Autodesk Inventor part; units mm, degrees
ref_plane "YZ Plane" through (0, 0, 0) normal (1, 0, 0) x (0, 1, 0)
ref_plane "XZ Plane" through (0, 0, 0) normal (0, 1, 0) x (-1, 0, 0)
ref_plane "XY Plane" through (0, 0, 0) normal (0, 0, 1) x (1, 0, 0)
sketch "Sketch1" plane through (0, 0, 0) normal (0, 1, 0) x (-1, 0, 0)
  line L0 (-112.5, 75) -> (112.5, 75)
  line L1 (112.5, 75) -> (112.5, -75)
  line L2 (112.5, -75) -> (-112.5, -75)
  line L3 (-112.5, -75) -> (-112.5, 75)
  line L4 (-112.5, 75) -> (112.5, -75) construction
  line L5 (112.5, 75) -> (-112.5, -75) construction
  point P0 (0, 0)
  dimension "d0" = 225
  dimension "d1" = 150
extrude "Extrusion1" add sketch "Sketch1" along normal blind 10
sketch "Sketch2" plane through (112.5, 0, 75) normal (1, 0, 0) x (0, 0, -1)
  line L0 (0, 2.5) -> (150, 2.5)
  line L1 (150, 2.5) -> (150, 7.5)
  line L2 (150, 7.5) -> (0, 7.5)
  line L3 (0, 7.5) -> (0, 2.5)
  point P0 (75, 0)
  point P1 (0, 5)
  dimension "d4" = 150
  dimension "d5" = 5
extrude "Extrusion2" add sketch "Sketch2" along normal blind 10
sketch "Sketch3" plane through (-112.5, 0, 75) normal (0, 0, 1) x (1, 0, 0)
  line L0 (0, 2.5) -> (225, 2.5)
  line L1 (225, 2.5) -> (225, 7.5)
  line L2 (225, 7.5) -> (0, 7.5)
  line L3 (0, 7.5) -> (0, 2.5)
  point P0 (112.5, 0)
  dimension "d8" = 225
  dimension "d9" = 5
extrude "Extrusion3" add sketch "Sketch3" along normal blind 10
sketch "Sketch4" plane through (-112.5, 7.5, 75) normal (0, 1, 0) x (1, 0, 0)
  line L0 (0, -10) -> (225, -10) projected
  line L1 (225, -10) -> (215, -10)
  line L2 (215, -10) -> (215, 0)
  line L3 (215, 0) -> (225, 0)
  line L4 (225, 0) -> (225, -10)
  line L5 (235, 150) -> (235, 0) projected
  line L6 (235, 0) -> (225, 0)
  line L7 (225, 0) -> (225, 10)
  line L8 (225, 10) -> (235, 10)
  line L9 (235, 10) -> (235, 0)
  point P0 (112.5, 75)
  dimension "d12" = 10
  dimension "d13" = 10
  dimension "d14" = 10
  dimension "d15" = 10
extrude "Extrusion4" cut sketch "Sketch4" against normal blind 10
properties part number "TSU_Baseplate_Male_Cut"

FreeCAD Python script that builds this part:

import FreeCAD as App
import Part
import Sketcher

V = App.Vector

doc = App.newDocument("Part")
params = doc.addObject("Spreadsheet::Sheet", "Params")
for row, (alias, value) in enumerate([
    ("sketch1_width", "225 mm"),
    ("sketch1_height", "150 mm"),
    ("pad1_length", "10 mm"),
    ("sketch2_width", "5 mm"),
    ("sketch2_height", "150 mm"),
    ("pad2_length", "10 mm"),
    ("sketch3_width", "225 mm"),
    ("sketch3_height", "5 mm"),
    ("pad3_length", "10 mm"),
    ("sketch4_width", "10 mm"),
    ("pocket1_length", "10 mm"),
], start=1):
    params.set(f"A{row}", alias)
    params.set(f"B{row}", "=" + value)
    params.setAlias(f"B{row}", alias)

body = doc.addObject("PartDesign::Body", "Body")

# Sketch on XZ plane
sketch1 = body.newObject("Sketcher::SketchObject", "Sketch")
sketch1.AttachmentSupport = (doc.getObject("XZ_Plane"), [""])
sketch1.MapMode = "FlatFace"
sketch1.addGeometry([
    Part.LineSegment(V(-112, 75, 0), V(112, 75, 0)),
    Part.LineSegment(V(112, 75, 0), V(112, -75, 0)),
    Part.LineSegment(V(112, -75, 0), V(-112, -75, 0)),
    Part.LineSegment(V(-112, -75, 0), V(-112, 75, 0)),
], False)
sketch1.addConstraint([
    Sketcher.Constraint("Coincident", 0, 2, 1, 1),
    Sketcher.Constraint("Coincident", 1, 2, 2, 1),
    Sketcher.Constraint("Coincident", 2, 2, 3, 1),
    Sketcher.Constraint("Coincident", 3, 2, 0, 1),
    Sketcher.Constraint("Horizontal", 0),
    Sketcher.Constraint("Vertical", 1),
    Sketcher.Constraint("Horizontal", 2),
    Sketcher.Constraint("Vertical", 3),
    Sketcher.Constraint("Symmetric", 0, 2, 2, 2, -1, 1),
    Sketcher.Constraint("DistanceX", 0, 1, 0, 2, 225.0),
    Sketcher.Constraint("DistanceY", 1, 2, 1, 1, 150.0),
])
sketch1.setExpression("Constraints[9]", "Params.sketch1_width")
sketch1.setExpression("Constraints[10]", "Params.sketch1_height")
pad1 = body.newObject("PartDesign::Pad", "Pad")
pad1.Profile = sketch1
pad1.setExpression("Length", "Params.pad1_length")
pad1.Reversed = True

# Sketch on YZ plane
sketch2 = body.newObject("Sketcher::SketchObject", "Sketch001")
sketch2.AttachmentSupport = (doc.getObject("YZ_Plane"), [""])
sketch2.MapMode = "FlatFace"
sketch2.AttachmentOffset = App.Placement(V(0, 0, 112.5), App.Rotation())
sketch2.addGeometry([
    Part.LineSegment(V(8, 75, 0), V(2, 75, 0)),
    Part.LineSegment(V(2, 75, 0), V(2, -75, 0)),
    Part.LineSegment(V(2, -75, 0), V(8, -75, 0)),
    Part.LineSegment(V(8, -75, 0), V(8, 75, 0)),
], False)
sketch2.addConstraint([
    Sketcher.Constraint("Coincident", 0, 2, 1, 1),
    Sketcher.Constraint("Coincident", 1, 2, 2, 1),
    Sketcher.Constraint("Coincident", 2, 2, 3, 1),
    Sketcher.Constraint("Coincident", 3, 2, 0, 1),
    Sketcher.Constraint("Horizontal", 0),
    Sketcher.Constraint("Vertical", 1),
    Sketcher.Constraint("Horizontal", 2),
    Sketcher.Constraint("Vertical", 3),
    Sketcher.Constraint("DistanceX", 0, 2, 0, 1, 5.0),
    Sketcher.Constraint("DistanceY", 1, 2, 1, 1, 150.0),
    Sketcher.Constraint("DistanceY", -1, 1, 0, 2, 75.0),
    Sketcher.Constraint("DistanceX", -1, 1, 0, 2, 2.5),
])
sketch2.setExpression("Constraints[8]", "Params.sketch2_width")
sketch2.setExpression("Constraints[9]", "Params.sketch2_height")
pad2 = body.newObject("PartDesign::Pad", "Pad001")
pad2.Profile = sketch2
pad2.setExpression("Length", "Params.pad2_length")

# Sketch on XY plane
sketch3 = body.newObject("Sketcher::SketchObject", "Sketch002")
sketch3.AttachmentSupport = (doc.getObject("XY_Plane"), [""])
sketch3.MapMode = "FlatFace"
sketch3.AttachmentOffset = App.Placement(V(0, 0, 75), App.Rotation())
sketch3.addGeometry([
    Part.LineSegment(V(-112, 8, 0), V(-112, 2, 0)),
    Part.LineSegment(V(-112, 2, 0), V(112, 2, 0)),
    Part.LineSegment(V(112, 2, 0), V(112, 8, 0)),
    Part.LineSegment(V(112, 8, 0), V(-112, 8, 0)),
], False)
sketch3.addConstraint([
    Sketcher.Constraint("Coincident", 0, 2, 1, 1),
    Sketcher.Constraint("Coincident", 1, 2, 2, 1),
    Sketcher.Constraint("Coincident", 2, 2, 3, 1),
    Sketcher.Constraint("Coincident", 3, 2, 0, 1),
    Sketcher.Constraint("Vertical", 0),
    Sketcher.Constraint("Horizontal", 1),
    Sketcher.Constraint("Vertical", 2),
    Sketcher.Constraint("Horizontal", 3),
    Sketcher.Constraint("DistanceX", 1, 1, 1, 2, 225.0),
    Sketcher.Constraint("DistanceY", 0, 2, 0, 1, 5.0),
    Sketcher.Constraint("DistanceX", 0, 2, -1, 1, 112.5),
    Sketcher.Constraint("DistanceY", -1, 1, 0, 2, 2.5),
])
sketch3.setExpression("Constraints[8]", "Params.sketch3_width")
sketch3.setExpression("Constraints[9]", "Params.sketch3_height")
pad3 = body.newObject("PartDesign::Pad", "Pad002")
pad3.Profile = sketch3
pad3.setExpression("Length", "Params.pad3_length")

# Sketch on XZ plane
sketch4 = body.newObject("Sketcher::SketchObject", "Sketch003")
sketch4.AttachmentSupport = (doc.getObject("XZ_Plane"), [""])
sketch4.MapMode = "FlatFace"
sketch4.AttachmentOffset = App.Placement(V(0, 0, -7.5), App.Rotation())
sketch4.addGeometry([
    Part.LineSegment(V(102, 75, 0), V(102, 85, 0)),  # 0
    Part.LineSegment(V(102, 85, 0), V(112, 85, 0)),  # 1
    Part.LineSegment(V(112, 85, 0), V(112, 75, 0)),  # 2
    Part.LineSegment(V(112, 75, 0), V(102, 75, 0)),  # 3
    Part.LineSegment(V(112, 65, 0), V(112, 75, 0)),  # 4
    Part.LineSegment(V(112, 75, 0), V(122, 75, 0)),  # 5
    Part.LineSegment(V(122, 75, 0), V(122, 65, 0)),  # 6
    Part.LineSegment(V(122, 65, 0), V(112, 65, 0)),  # 7
], False)
sketch4.addConstraint([
    Sketcher.Constraint("Coincident", 0, 2, 1, 1),
    Sketcher.Constraint("Coincident", 1, 2, 2, 1),
    Sketcher.Constraint("Coincident", 2, 2, 3, 1),
    Sketcher.Constraint("Coincident", 3, 2, 0, 1),
    Sketcher.Constraint("Coincident", 4, 2, 5, 1),
    Sketcher.Constraint("Coincident", 5, 2, 6, 1),
    Sketcher.Constraint("Coincident", 6, 2, 7, 1),
    Sketcher.Constraint("Coincident", 7, 2, 4, 1),
    Sketcher.Constraint("Vertical", 0),
    Sketcher.Constraint("Horizontal", 1),
    Sketcher.Constraint("Vertical", 2),
    Sketcher.Constraint("Horizontal", 3),
    Sketcher.Constraint("Vertical", 4),
    Sketcher.Constraint("Horizontal", 5),
    Sketcher.Constraint("Vertical", 6),
    Sketcher.Constraint("Horizontal", 7),
    Sketcher.Constraint("Coincident", 4, 2, 2, 2),
    Sketcher.Constraint("Equal", 3, 5),
    Sketcher.Constraint("Equal", 7, 0),
    Sketcher.Constraint("Equal", 2, 4),
    Sketcher.Constraint("DistanceX", 1, 1, 1, 2, 10.0),
    Sketcher.Constraint("DistanceY", -1, 1, 0, 2, 85.0),
    Sketcher.Constraint("DistanceX", -1, 1, 0, 2, 102.5),
])
sketch4.setExpression("Constraints[20]", "Params.sketch4_width")
pocket1 = body.newObject("PartDesign::Pocket", "Pocket")
pocket1.Profile = sketch4
pocket1.setExpression("Length", "Params.pocket1_length")
pocket1.Reversed = True

doc.recompute()
